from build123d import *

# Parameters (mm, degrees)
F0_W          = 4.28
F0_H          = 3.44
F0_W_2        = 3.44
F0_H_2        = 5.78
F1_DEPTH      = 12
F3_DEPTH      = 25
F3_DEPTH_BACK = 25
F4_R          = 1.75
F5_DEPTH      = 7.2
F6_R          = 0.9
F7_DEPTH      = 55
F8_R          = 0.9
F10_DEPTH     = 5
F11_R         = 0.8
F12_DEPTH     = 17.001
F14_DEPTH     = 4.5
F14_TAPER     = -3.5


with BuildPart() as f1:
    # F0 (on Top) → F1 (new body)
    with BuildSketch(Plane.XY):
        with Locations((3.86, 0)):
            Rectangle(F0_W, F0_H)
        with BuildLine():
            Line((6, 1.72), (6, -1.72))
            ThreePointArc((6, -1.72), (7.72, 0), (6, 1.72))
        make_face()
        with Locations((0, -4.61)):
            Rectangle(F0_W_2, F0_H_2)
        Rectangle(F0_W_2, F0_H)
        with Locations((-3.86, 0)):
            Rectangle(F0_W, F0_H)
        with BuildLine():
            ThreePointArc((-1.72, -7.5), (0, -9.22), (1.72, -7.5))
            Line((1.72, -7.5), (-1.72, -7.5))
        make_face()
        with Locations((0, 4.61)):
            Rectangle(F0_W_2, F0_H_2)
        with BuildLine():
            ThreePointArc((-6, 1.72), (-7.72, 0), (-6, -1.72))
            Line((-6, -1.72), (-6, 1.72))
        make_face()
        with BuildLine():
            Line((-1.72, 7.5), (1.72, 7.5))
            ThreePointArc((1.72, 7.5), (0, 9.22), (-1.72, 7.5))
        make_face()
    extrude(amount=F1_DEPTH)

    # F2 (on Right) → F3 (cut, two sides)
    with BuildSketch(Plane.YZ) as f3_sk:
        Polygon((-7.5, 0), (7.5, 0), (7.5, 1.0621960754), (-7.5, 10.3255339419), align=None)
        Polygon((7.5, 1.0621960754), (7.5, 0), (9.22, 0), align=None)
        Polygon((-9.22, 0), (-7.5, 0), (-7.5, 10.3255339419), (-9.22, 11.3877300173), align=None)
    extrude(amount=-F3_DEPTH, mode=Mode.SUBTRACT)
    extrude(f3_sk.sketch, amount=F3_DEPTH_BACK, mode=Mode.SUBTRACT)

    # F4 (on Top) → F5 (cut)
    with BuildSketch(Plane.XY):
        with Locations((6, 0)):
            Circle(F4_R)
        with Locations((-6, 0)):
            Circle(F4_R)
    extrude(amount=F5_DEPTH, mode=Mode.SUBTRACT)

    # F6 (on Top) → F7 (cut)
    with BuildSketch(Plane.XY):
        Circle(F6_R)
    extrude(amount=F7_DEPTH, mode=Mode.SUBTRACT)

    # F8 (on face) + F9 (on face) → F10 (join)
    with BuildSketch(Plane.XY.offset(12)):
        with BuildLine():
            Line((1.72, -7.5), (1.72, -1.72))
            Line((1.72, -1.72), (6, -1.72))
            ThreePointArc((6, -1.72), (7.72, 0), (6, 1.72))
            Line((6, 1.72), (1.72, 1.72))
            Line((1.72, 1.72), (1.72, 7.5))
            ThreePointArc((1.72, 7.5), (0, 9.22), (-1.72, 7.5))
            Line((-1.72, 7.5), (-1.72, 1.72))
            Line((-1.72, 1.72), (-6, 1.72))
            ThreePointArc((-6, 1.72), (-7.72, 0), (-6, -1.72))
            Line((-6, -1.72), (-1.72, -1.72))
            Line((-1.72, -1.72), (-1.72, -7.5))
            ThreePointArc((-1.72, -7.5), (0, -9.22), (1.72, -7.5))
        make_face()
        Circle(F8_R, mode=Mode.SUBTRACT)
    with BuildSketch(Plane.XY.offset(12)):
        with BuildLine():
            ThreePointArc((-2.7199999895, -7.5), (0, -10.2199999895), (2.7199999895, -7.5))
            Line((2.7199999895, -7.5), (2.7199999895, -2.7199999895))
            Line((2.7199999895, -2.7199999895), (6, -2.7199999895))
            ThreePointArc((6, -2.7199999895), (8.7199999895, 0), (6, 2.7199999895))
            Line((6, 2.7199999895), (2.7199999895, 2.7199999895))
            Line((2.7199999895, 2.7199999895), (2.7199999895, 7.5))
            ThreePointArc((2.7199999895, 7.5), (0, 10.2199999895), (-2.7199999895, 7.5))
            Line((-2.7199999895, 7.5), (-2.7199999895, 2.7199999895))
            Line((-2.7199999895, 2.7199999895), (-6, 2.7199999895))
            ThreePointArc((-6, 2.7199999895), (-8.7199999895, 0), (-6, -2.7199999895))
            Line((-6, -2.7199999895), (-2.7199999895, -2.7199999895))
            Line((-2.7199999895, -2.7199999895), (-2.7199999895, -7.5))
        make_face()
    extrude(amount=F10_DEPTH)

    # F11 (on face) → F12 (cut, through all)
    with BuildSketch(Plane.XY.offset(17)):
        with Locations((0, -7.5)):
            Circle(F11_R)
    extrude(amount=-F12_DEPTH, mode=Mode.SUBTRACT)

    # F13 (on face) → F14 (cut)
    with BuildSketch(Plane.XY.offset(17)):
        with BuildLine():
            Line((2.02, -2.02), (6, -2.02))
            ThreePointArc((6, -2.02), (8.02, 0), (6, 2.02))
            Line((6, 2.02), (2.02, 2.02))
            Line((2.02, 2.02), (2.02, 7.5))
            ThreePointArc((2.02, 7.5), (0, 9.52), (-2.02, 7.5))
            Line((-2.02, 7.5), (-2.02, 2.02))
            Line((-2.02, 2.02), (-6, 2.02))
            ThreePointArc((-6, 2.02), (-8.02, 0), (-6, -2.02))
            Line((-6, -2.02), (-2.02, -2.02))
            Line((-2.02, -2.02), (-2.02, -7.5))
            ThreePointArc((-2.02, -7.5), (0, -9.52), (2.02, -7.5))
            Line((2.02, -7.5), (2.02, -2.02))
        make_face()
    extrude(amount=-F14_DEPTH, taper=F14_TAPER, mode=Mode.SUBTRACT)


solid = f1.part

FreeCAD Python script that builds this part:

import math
import FreeCAD as App
import Part
import Sketcher
Q = App.Units.Quantity

doc = App.newDocument("Part")
body = doc.addObject("PartDesign::Body", "Body")

# Sketch on XY plane
sketch1 = body.newObject("Sketcher::SketchObject", "Sketch")
sketch1.AttachmentSupport = (doc.getObject("XY_Plane"), [""])
sketch1.MapMode = "FlatFace"
sketch1.addGeometry([
    Part.LineSegment(App.Vector(1.72, -1.72, 0), App.Vector(6, -1.72, 0)),  # 0
    Part.ArcOfCircle(Part.Circle(App.Vector(6, 0, 0), App.Vector(0, 0, 1), 1.72), math.radians(-90), math.radians(90)),  # 1
    Part.LineSegment(App.Vector(6, 1.72, 0), App.Vector(1.72, 1.72, 0)),  # 2
    Part.LineSegment(App.Vector(1.72, 1.72, 0), App.Vector(1.72, 7.5, 0)),  # 3
    Part.ArcOfCircle(Part.Circle(App.Vector(0, 7.5, 0), App.Vector(0, 0, 1), 1.72), math.radians(0), math.radians(180)),  # 4
    Part.LineSegment(App.Vector(-1.72, 7.5, 0), App.Vector(-1.72, 1.72, 0)),  # 5
    Part.LineSegment(App.Vector(-1.72, 1.72, 0), App.Vector(-6, 1.72, 0)),  # 6
    Part.ArcOfCircle(Part.Circle(App.Vector(-6, 0, 0), App.Vector(0, 0, 1), 1.72), math.radians(90), math.radians(270)),  # 7
    Part.LineSegment(App.Vector(-6, -1.72, 0), App.Vector(-1.72, -1.72, 0)),  # 8
    Part.LineSegment(App.Vector(-1.72, -1.72, 0), App.Vector(-1.72, -7.5, 0)),  # 9
    Part.ArcOfCircle(Part.Circle(App.Vector(0, -7.5, 0), App.Vector(0, 0, 1), 1.72), math.radians(180), math.radians(360)),  # 10
    Part.LineSegment(App.Vector(1.72, -7.5, 0), App.Vector(1.72, -1.72, 0)),  # 11
], False)
sketch1.addConstraint([
    Sketcher.Constraint("Tangent", 0, 2, 1, 1),
    Sketcher.Constraint("Tangent", 1, 2, 2, 1),
    Sketcher.Constraint("Coincident", 2, 2, 3, 1),
    Sketcher.Constraint("Tangent", 3, 2, 4, 1),
    Sketcher.Constraint("Tangent", 4, 2, 5, 1),
    Sketcher.Constraint("Coincident", 5, 2, 6, 1),
    Sketcher.Constraint("Tangent", 6, 2, 7, 1),
    Sketcher.Constraint("Tangent", 7, 2, 8, 1),
    Sketcher.Constraint("Coincident", 8, 2, 9, 1),
    Sketcher.Constraint("Tangent", 9, 2, 10, 1),
    Sketcher.Constraint("Tangent", 10, 2, 11, 1),
    Sketcher.Constraint("Coincident", 11, 2, 0, 1),
    Sketcher.Constraint("Horizontal", 0),
    Sketcher.Constraint("Horizontal", 2),
    Sketcher.Constraint("Vertical", 3),
    Sketcher.Constraint("Vertical", 5),
    Sketcher.Constraint("Horizontal", 6),
    Sketcher.Constraint("Horizontal", 8),
    Sketcher.Constraint("Vertical", 9),
    Sketcher.Constraint("Vertical", 11),
    Sketcher.Constraint("Equal", 1, 4),
    Sketcher.Constraint("Equal", 4, 7),
    Sketcher.Constraint("Equal", 7, 10),
    Sketcher.Constraint("Symmetric", 1, 3, 7, 3, -1, 1),
    Sketcher.Constraint("Symmetric", 4, 3, 10, 3, -1, 1),
    Sketcher.Constraint("Symmetric", 2, 2, 5, 2, -2),
    Sketcher.Constraint("Radius", 1, Q("1.72 mm")),
    Sketcher.Constraint("DistanceX", -1, 1, 1, 3, Q("6 mm")),
    Sketcher.Constraint("DistanceY", 10, 3, 4, 3, Q("15 mm")),
])
pad1 = body.newObject("PartDesign::Pad", "Pad")
pad1.Profile = sketch1
pad1.Length = 12

# Sketch on YZ plane
sketch2 = body.newObject("Sketcher::SketchObject", "Sketch001")
sketch2.AttachmentSupport = (doc.getObject("YZ_Plane"), [""])
sketch2.MapMode = "FlatFace"
sketch2.addGeometry([
    Part.LineSegment(App.Vector(9.22, 0, 0), App.Vector(7.5, 1.062196, 0)),  # 0
    Part.LineSegment(App.Vector(7.5, 1.062196, 0), App.Vector(-7.5, 10.325534, 0)),  # 1
    Part.LineSegment(App.Vector(-7.5, 10.325534, 0), App.Vector(-9.22, 11.38773, 0)),  # 2
    Part.LineSegment(App.Vector(-9.22, 11.38773, 0), App.Vector(-9.22, 0, 0)),  # 3
    Part.LineSegment(App.Vector(-9.22, 0, 0), App.Vector(9.22, 0, 0)),  # 4
], False)
sketch2.addConstraint([
    Sketcher.Constraint("Coincident", 0, 2, 1, 1),
    Sketcher.Constraint("Coincident", 1, 2, 2, 1),
    Sketcher.Constraint("Coincident", 2, 2, 3, 1),
    Sketcher.Constraint("Coincident", 3, 2, 4, 1),
    Sketcher.Constraint("Coincident", 4, 2, 0, 1),
    Sketcher.Constraint("Vertical", 3),
    Sketcher.Constraint("Horizontal", 4),
    Sketcher.Constraint("Symmetric", 3, 2, 4, 2, -1, 1),
    Sketcher.Constraint("Parallel", 0, 1),
    Sketcher.Constraint("Parallel", 1, 2),
    Sketcher.Constraint("Equal", 0, 2),
    Sketcher.Constraint("DistanceX", 1, 2, 0, 2, Q("15 mm")),
    Sketcher.Constraint("DistanceX", 4, 1, 4, 2, Q("18.44 mm")),
    Sketcher.Constraint("DistanceY", 3, 2, 3, 1, Q("11.38773 mm")),
])
pocket1 = body.newObject("PartDesign::Pocket", "Pocket")
pocket1.Profile = sketch2
pocket1.Type = "ThroughAll"
pocket1.Midplane = True

# Sketch on XY plane
sketch3 = body.newObject("Sketcher::SketchObject", "Sketch002")
sketch3.AttachmentSupport = (doc.getObject("XY_Plane"), [""])
sketch3.MapMode = "FlatFace"
sketch3.addGeometry([
    Part.Circle(App.Vector(6, 0, 0), App.Vector(0, 0, 1), 1.75),
    Part.Circle(App.Vector(-6, 0, 0), App.Vector(0, 0, 1), 1.75),
], False)
sketch3.addConstraint([
    Sketcher.Constraint("Equal", 0, 1),
    Sketcher.Constraint("Symmetric", 0, 3, 1, 3, -1, 1),
    Sketcher.Constraint("PointOnObject", 0, 3, -1),
    Sketcher.Constraint("Diameter", 0, Q("3.5 mm")),
    Sketcher.Constraint("DistanceX", -1, 1, 0, 3, Q("6 mm")),
])
pocket2 = body.newObject("PartDesign::Pocket", "Pocket001")
pocket2.Profile = sketch3
pocket2.Length = 7.2
pocket2.Reversed = True

# Sketch on XY plane
sketch4 = body.newObject("Sketcher::SketchObject", "Sketch003")
sketch4.AttachmentSupport = (doc.getObject("XY_Plane"), [""])
sketch4.MapMode = "FlatFace"
sketch4.addGeometry(Part.Circle(App.Vector(0, 0, 0), App.Vector(0, 0, 1), 0.9), False)
sketch4.addConstraint([
    Sketcher.Constraint("Coincident", 0, 3, -1, 1),
    Sketcher.Constraint("Diameter", 0, Q("1.8 mm")),
])
pocket3 = body.newObject("PartDesign::Pocket", "Pocket002")
pocket3.Profile = sketch4
pocket3.Length = 55
pocket3.Reversed = True

# Sketch on XY plane
sketch5 = body.newObject("Sketcher::SketchObject", "Sketch004")
sketch5.AttachmentSupport = (doc.getObject("XY_Plane"), [""])
sketch5.MapMode = "FlatFace"
sketch5.AttachmentOffset = App.Placement(App.Vector(0, 0, 12), App.Rotation())
sketch5.addGeometry([
    Part.ArcOfCircle(Part.Circle(App.Vector(0, -7.5, 0), App.Vector(0, 0, 1), 2.72), math.radians(180), math.radians(360)),  # 0
    Part.LineSegment(App.Vector(2.72, -7.5, 0), App.Vector(2.72, -2.72, 0)),  # 1
    Part.LineSegment(App.Vector(2.72, -2.72, 0), App.Vector(6, -2.72, 0)),  # 2
    Part.ArcOfCircle(Part.Circle(App.Vector(6, 0, 0), App.Vector(0, 0, 1), 2.72), math.radians(-90), math.radians(90)),  # 3
    Part.LineSegment(App.Vector(6, 2.72, 0), App.Vector(2.72, 2.72, 0)),  # 4
    Part.LineSegment(App.Vector(2.72, 2.72, 0), App.Vector(2.72, 7.5, 0)),  # 5
    Part.ArcOfCircle(Part.Circle(App.Vector(0, 7.5, 0), App.Vector(0, 0, 1), 2.72), math.radians(0), math.radians(180)),  # 6
    Part.LineSegment(App.Vector(-2.72, 7.5, 0), App.Vector(-2.72, 2.72, 0)),  # 7
    Part.LineSegment(App.Vector(-2.72, 2.72, 0), App.Vector(-6, 2.72, 0)),  # 8
    Part.ArcOfCircle(Part.Circle(App.Vector(-6, 0, 0), App.Vector(0, 0, 1), 2.72), math.radians(90), math.radians(270)),  # 9
    Part.LineSegment(App.Vector(-6, -2.72, 0), App.Vector(-2.72, -2.72, 0)),  # 10
    Part.LineSegment(App.Vector(-2.72, -2.72, 0), App.Vector(-2.72, -7.5, 0)),  # 11
], False)
sketch5.addConstraint([
    Sketcher.Constraint("Tangent", 0, 2, 1, 1),
    Sketcher.Constraint("Coincident", 1, 2, 2, 1),
    Sketcher.Constraint("Tangent", 2, 2, 3, 1),
    Sketcher.Constraint("Tangent", 3, 2, 4, 1),
    Sketcher.Constraint("Coincident", 4, 2, 5, 1),
    Sketcher.Constraint("Tangent", 5, 2, 6, 1),
    Sketcher.Constraint("Tangent", 6, 2, 7, 1),
    Sketcher.Constraint("Coincident", 7, 2, 8, 1),
    Sketcher.Constraint("Tangent", 8, 2, 9, 1),
    Sketcher.Constraint("Tangent", 9, 2, 10, 1),
    Sketcher.Constraint("Coincident", 10, 2, 11, 1),
    Sketcher.Constraint("Tangent", 11, 2, 0, 1),
    Sketcher.Constraint("Vertical", 1),
    Sketcher.Constraint("Horizontal", 2),
    Sketcher.Constraint("Horizontal", 4),
    Sketcher.Constraint("Vertical", 5),
    Sketcher.Constraint("Vertical", 7),
    Sketcher.Constraint("Horizontal", 8),
    Sketcher.Constraint("Horizontal", 10),
    Sketcher.Constraint("Vertical", 11),
    Sketcher.Constraint("Equal", 0, 3),
    Sketcher.Constraint("Equal", 3, 6),
    Sketcher.Constraint("Equal", 6, 9),
    Sketcher.Constraint("Symmetric", 0, 3, 6, 3, -1, 1),
    Sketcher.Constraint("Symmetric", 3, 3, 9, 3, -1, 1),
    Sketcher.Constraint("Symmetric", 4, 2, 7, 2, -2),
    Sketcher.Constraint("Radius", 0, Q("2.72 mm")),
    Sketcher.Constraint("DistanceX", -1, 1, 3, 3, Q("6 mm")),
    Sketcher.Constraint("DistanceY", 0, 3, 6, 3, Q("15 mm")),
])
pad2 = body.newObject("PartDesign::Pad", "Pad001")
pad2.Profile = sketch5
pad2.Length = 5

# Sketch on XY plane
sketch6 = body.newObject("Sketcher::SketchObject", "Sketch005")
sketch6.AttachmentSupport = (doc.getObject("XY_Plane"), [""])
sketch6.MapMode = "FlatFace"
sketch6.AttachmentOffset = App.Placement(App.Vector(0, 0, 17), App.Rotation())
sketch6.addGeometry(Part.Circle(App.Vector(0, -7.5, 0), App.Vector(0, 0, 1), 0.8), False)
sketch6.addConstraint([
    Sketcher.Constraint("PointOnObject", 0, 3, -2),
    Sketcher.Constraint("Diameter", 0, Q("1.6 mm")),
    Sketcher.Constraint("DistanceY", 0, 3, -1, 1, Q("7.5 mm")),
])
pocket4 = body.newObject("PartDesign::Pocket", "Pocket003")
pocket4.Profile = sketch6
pocket4.Type = "ThroughAll"

# Sketch on XY plane
sketch7 = body.newObject("Sketcher::SketchObject", "Sketch006")
sketch7.AttachmentSupport = (doc.getObject("XY_Plane"), [""])
sketch7.MapMode = "FlatFace"
sketch7.AttachmentOffset = App.Placement(App.Vector(0, 0, 17), App.Rotation())
sketch7.addGeometry([
    Part.LineSegment(App.Vector(2.02, -2.02, 0), App.Vector(6, -2.02, 0)),  # 0
    Part.ArcOfCircle(Part.Circle(App.Vector(6, 0, 0), App.Vector(0, 0, 1), 2.02), math.radians(-90), math.radians(90)),  # 1
    Part.LineSegment(App.Vector(6, 2.02, 0), App.Vector(2.02, 2.02, 0)),  # 2
    Part.LineSegment(App.Vector(2.02, 2.02, 0), App.Vector(2.02, 7.5, 0)),  # 3
    Part.ArcOfCircle(Part.Circle(App.Vector(0, 7.5, 0), App.Vector(0, 0, 1), 2.02), math.radians(0), math.radians(180)),  # 4
    Part.LineSegment(App.Vector(-2.02, 7.5, 0), App.Vector(-2.02, 2.02, 0)),  # 5
    Part.LineSegment(App.Vector(-2.02, 2.02, 0), App.Vector(-6, 2.02, 0)),  # 6
    Part.ArcOfCircle(Part.Circle(App.Vector(-6, 0, 0), App.Vector(0, 0, 1), 2.02), math.radians(90), math.radians(270)),  # 7
    Part.LineSegment(App.Vector(-6, -2.02, 0), App.Vector(-2.02, -2.02, 0)),  # 8
    Part.LineSegment(App.Vector(-2.02, -2.02, 0), App.Vector(-2.02, -7.5, 0)),  # 9
    Part.ArcOfCircle(Part.Circle(App.Vector(0, -7.5, 0), App.Vector(0, 0, 1), 2.02), math.radians(180), math.radians(360)),  # 10
    Part.LineSegment(App.Vector(2.02, -7.5, 0), App.Vector(2.02, -2.02, 0)),  # 11
], False)
sketch7.addConstraint([
    Sketcher.Constraint("Tangent", 0, 2, 1, 1),
    Sketcher.Constraint("Tangent", 1, 2, 2, 1),
    Sketcher.Constraint("Coincident", 2, 2, 3, 1),
    Sketcher.Constraint("Tangent", 3, 2, 4, 1),
    Sketcher.Constraint("Tangent", 4, 2, 5, 1),
    Sketcher.Constraint("Coincident", 5, 2, 6, 1),
    Sketcher.Constraint("Tangent", 6, 2, 7, 1),
    Sketcher.Constraint("Tangent", 7, 2, 8, 1),
    Sketcher.Constraint("Coincident", 8, 2, 9, 1),
    Sketcher.Constraint("Tangent", 9, 2, 10, 1),
    Sketcher.Constraint("Tangent", 10, 2, 11, 1),
    Sketcher.Constraint("Coincident", 11, 2, 0, 1),
    Sketcher.Constraint("Horizontal", 0),
    Sketcher.Constraint("Horizontal", 2),
    Sketcher.Constraint("Vertical", 3),
    Sketcher.Constraint("Vertical", 5),
    Sketcher.Constraint("Horizontal", 6),
    Sketcher.Constraint("Horizontal", 8),
    Sketcher.Constraint("Vertical", 9),
    Sketcher.Constraint("Vertical", 11),
    Sketcher.Constraint("Equal", 1, 4),
    Sketcher.Constraint("Equal", 4, 7),
    Sketcher.Constraint("Equal", 7, 10),
    Sketcher.Constraint("Symmetric", 1, 3, 7, 3, -1, 1),
    Sketcher.Constraint("Symmetric", 4, 3, 10, 3, -1, 1),
    Sketcher.Constraint("Symmetric", 2, 2, 5, 2, -2),
    Sketcher.Constraint("Radius", 1, Q("2.02 mm")),
    Sketcher.Constraint("DistanceX", -1, 1, 1, 3, Q("6 mm")),
    Sketcher.Constraint("DistanceY", 10, 3, 4, 3, Q("15 mm")),
])
pocket5 = body.newObject("PartDesign::Pocket", "Pocket004")
pocket5.Profile = sketch7
pocket5.Length = 4.5
pocket5.TaperAngle = 3.5

doc.recompute()
